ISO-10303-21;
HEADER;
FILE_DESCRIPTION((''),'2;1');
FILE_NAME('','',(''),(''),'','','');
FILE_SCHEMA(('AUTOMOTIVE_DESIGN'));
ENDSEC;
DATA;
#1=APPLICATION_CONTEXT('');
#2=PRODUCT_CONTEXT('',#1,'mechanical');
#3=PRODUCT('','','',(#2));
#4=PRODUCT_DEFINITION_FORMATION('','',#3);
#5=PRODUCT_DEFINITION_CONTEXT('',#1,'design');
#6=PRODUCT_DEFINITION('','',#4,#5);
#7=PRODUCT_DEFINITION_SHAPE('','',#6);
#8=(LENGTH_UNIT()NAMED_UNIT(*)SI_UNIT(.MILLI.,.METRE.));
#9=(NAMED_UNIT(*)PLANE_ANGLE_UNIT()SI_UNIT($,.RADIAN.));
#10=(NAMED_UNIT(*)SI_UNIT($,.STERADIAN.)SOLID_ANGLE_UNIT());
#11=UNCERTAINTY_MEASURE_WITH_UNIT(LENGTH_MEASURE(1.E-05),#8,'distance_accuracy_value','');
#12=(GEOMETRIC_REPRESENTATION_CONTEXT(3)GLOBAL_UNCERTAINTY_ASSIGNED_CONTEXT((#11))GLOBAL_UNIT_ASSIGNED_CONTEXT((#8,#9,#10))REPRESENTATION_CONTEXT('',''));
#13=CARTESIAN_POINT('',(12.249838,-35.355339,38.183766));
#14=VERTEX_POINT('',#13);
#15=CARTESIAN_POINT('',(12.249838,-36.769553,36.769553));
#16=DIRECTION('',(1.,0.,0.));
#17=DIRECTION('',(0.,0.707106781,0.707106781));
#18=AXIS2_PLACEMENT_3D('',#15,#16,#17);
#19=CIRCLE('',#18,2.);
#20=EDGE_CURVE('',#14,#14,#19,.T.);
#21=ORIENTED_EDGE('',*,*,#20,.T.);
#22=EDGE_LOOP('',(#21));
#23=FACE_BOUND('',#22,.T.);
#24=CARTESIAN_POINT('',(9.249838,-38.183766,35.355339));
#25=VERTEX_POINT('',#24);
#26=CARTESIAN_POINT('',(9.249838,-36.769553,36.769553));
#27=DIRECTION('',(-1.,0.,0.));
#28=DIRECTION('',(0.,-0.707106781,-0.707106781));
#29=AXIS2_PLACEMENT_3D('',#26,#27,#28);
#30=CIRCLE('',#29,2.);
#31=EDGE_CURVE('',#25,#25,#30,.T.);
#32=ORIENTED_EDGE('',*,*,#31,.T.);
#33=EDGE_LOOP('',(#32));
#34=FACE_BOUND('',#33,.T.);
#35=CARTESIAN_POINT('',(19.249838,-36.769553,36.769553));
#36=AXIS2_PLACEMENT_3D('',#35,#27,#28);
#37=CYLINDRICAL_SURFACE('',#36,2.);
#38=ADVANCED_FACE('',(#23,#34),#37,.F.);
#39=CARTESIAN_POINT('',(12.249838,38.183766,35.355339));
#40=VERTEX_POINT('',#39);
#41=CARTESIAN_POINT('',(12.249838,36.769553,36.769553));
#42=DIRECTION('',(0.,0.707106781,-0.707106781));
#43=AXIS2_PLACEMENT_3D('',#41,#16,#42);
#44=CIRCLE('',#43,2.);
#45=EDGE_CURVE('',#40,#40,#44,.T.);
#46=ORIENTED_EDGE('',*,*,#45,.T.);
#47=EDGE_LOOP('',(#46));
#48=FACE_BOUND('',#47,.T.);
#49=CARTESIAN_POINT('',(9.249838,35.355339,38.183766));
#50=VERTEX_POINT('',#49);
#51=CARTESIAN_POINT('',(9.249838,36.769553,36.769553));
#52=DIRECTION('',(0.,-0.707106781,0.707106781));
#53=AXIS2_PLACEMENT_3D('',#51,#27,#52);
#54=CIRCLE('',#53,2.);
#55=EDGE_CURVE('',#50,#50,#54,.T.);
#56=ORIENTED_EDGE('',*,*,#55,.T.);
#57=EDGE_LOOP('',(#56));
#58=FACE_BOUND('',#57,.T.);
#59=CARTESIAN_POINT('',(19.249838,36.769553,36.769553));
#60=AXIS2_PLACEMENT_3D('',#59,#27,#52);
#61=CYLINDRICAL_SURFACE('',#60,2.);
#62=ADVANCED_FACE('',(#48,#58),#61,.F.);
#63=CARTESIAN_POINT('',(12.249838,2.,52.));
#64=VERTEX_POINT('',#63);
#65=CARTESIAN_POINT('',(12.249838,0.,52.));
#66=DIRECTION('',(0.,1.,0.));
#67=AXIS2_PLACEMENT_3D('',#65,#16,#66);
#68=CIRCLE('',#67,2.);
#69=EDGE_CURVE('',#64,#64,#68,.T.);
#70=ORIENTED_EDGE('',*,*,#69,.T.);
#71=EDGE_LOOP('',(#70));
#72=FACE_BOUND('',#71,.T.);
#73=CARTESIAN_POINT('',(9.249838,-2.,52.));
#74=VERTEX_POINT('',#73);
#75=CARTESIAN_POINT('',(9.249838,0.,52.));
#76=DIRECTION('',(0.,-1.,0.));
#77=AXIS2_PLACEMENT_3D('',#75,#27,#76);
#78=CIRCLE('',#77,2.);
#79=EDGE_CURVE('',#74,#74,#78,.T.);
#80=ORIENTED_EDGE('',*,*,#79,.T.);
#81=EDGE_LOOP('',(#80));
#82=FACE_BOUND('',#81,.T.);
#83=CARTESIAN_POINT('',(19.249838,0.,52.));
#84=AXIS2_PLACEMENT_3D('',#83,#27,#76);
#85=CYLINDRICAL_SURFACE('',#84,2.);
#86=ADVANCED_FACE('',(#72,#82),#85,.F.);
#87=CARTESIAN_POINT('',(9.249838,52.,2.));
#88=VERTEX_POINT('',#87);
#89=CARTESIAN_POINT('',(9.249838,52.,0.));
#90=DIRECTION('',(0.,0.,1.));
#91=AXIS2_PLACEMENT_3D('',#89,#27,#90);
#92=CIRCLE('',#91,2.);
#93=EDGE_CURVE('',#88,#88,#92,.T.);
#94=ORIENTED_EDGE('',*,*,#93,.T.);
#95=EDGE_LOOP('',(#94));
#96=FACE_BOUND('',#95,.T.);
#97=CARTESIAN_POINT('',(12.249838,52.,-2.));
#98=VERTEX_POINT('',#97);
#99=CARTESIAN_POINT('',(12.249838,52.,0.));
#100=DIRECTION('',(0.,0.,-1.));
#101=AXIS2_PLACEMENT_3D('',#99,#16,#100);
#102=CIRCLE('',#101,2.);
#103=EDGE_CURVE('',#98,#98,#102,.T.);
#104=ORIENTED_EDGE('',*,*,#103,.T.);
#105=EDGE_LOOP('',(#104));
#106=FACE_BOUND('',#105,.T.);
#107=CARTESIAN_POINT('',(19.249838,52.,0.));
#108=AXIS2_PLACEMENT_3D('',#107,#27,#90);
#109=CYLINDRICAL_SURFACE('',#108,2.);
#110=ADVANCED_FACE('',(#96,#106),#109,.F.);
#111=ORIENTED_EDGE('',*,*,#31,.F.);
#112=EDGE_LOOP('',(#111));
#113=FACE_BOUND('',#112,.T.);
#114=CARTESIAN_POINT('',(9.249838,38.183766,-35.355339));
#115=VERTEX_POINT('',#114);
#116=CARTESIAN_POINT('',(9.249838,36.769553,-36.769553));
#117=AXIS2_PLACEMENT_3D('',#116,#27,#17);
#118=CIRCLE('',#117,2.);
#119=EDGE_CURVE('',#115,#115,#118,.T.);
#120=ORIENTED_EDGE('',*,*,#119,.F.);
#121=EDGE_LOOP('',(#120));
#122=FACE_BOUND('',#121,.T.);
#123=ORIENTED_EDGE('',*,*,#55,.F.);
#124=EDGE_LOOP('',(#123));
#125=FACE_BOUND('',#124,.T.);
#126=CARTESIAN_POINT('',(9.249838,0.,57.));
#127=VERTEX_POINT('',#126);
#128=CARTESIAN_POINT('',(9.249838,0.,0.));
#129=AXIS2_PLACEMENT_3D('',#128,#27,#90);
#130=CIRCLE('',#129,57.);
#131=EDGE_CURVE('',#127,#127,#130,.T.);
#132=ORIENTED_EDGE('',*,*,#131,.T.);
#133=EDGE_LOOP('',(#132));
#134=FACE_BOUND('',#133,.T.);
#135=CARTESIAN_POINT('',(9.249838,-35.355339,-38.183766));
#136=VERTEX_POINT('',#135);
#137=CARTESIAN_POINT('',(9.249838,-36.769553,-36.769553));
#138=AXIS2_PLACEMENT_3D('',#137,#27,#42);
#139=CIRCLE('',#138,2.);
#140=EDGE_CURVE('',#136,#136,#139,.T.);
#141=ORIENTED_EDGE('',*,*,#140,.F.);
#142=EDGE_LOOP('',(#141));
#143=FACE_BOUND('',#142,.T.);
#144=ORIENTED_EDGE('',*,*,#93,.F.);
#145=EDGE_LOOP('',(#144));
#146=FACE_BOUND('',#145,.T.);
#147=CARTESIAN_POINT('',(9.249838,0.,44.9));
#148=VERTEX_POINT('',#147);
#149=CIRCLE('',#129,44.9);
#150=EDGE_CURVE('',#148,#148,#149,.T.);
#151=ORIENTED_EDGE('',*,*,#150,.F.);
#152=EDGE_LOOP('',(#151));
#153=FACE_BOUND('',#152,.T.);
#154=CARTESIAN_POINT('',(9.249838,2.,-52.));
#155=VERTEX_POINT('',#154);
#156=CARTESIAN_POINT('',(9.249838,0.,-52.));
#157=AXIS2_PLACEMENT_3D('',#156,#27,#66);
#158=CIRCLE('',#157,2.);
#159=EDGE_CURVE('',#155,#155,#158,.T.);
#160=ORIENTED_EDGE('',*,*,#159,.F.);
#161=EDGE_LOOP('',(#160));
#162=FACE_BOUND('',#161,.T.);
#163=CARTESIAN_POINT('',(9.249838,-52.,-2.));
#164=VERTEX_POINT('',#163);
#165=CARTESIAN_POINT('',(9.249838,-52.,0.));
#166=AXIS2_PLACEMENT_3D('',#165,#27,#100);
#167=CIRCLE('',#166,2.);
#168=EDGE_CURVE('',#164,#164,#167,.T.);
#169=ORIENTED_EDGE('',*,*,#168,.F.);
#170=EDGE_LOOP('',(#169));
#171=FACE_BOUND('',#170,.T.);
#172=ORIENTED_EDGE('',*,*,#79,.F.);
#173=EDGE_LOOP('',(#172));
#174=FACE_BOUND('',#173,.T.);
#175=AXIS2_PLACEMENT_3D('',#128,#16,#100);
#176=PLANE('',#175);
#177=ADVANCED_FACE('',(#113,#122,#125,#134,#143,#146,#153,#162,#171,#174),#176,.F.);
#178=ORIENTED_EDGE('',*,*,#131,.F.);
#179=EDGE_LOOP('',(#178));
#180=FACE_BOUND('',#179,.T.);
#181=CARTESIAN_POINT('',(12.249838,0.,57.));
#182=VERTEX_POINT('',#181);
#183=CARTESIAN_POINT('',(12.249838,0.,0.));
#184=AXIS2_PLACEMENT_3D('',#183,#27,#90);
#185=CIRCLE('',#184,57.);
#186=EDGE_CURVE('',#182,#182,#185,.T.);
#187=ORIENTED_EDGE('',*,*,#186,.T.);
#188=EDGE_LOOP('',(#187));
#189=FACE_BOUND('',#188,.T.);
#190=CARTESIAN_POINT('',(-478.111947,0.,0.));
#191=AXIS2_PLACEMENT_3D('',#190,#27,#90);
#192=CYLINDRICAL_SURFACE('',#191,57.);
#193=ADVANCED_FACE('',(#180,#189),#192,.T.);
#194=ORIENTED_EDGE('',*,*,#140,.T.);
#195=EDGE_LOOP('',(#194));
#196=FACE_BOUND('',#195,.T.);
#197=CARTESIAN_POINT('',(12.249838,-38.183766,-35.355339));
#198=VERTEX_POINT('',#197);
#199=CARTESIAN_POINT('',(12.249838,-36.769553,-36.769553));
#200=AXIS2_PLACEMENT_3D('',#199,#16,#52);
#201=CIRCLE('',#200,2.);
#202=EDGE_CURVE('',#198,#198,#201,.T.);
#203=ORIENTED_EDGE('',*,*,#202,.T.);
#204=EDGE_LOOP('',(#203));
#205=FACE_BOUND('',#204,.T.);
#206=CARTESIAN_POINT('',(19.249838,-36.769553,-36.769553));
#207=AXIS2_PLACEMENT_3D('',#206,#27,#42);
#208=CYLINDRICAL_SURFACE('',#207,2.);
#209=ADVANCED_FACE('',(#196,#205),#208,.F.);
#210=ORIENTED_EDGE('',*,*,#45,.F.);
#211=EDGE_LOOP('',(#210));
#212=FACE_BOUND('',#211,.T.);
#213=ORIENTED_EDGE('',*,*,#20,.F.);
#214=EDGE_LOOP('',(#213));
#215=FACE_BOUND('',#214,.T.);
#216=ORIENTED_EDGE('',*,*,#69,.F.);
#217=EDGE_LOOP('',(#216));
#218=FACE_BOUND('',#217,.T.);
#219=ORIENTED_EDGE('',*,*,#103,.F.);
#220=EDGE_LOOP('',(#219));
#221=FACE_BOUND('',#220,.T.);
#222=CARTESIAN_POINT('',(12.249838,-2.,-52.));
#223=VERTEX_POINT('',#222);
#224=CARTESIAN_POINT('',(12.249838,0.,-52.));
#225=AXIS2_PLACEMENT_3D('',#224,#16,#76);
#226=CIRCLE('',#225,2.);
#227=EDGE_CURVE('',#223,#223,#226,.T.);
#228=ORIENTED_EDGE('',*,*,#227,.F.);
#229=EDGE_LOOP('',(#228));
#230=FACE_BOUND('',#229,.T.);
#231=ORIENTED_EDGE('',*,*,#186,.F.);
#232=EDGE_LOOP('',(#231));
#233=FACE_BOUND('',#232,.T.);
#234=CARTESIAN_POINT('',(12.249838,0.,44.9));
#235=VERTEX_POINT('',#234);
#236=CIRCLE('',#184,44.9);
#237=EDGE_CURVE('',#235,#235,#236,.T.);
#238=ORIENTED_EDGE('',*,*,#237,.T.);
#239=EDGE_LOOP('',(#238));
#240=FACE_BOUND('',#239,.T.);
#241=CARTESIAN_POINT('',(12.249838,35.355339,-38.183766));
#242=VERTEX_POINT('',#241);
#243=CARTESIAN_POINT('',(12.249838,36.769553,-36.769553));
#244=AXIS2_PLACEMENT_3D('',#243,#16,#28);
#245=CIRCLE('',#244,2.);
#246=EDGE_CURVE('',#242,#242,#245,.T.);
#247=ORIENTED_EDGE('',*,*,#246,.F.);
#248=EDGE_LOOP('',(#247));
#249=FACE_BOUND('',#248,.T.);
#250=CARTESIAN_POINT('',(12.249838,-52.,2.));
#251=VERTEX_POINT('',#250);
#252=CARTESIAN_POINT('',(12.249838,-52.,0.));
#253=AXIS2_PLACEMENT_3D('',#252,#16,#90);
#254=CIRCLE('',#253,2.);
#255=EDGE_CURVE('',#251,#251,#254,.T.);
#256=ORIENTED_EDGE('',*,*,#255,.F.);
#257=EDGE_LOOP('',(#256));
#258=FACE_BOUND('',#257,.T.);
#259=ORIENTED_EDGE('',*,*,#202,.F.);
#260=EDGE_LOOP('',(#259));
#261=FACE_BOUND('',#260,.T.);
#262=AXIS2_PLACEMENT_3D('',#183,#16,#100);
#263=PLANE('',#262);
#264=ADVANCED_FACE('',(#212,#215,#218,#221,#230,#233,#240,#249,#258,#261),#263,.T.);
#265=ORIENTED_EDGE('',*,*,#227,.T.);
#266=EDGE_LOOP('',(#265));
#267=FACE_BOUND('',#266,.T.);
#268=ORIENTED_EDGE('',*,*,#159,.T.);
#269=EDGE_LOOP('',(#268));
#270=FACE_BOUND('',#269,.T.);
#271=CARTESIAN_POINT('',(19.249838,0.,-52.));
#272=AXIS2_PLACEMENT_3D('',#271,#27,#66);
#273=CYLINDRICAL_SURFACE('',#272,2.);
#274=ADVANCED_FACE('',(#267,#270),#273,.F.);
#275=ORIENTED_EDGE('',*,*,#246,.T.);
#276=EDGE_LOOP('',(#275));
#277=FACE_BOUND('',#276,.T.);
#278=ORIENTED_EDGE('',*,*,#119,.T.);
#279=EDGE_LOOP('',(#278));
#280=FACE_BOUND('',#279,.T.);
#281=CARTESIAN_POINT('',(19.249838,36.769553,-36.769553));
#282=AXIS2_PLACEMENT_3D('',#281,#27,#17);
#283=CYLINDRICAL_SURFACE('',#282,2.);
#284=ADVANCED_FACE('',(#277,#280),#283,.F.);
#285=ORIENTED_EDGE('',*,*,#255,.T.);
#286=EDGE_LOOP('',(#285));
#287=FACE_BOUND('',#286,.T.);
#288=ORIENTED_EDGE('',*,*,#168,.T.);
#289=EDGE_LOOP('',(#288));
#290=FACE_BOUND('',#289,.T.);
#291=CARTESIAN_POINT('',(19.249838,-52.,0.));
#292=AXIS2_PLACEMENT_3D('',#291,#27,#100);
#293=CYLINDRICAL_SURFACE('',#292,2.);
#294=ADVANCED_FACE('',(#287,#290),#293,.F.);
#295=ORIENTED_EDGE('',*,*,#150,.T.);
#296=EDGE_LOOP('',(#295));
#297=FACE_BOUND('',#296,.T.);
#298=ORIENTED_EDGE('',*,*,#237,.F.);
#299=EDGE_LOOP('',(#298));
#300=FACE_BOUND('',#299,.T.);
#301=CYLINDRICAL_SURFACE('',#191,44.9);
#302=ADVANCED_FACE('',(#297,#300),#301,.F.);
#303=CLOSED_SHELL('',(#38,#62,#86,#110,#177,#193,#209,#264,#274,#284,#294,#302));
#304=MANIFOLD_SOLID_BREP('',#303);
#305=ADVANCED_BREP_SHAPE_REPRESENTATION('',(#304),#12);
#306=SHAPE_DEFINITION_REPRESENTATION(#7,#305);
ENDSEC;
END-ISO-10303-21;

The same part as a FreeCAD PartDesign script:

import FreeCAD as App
import Part
import Sketcher
from FreeCAD import Vector
Q = App.Units.Quantity

doc = App.newDocument("Part")
body = doc.addObject("PartDesign::Body", "Body")

# Sketch on XY plane
sketch1 = body.newObject("Sketcher::SketchObject", "Sketch")
sketch1.AttachmentSupport = (doc.getObject("XY_Plane"), [""])
sketch1.MapMode = "FlatFace"
sketch1.addGeometry([
    Part.LineSegment(Vector(9.2, 57, 0), Vector(9.2, 44.9, 0)),
    Part.LineSegment(Vector(9.2, 44.9, 0), Vector(12.2, 44.9, 0)),
    Part.LineSegment(Vector(12.2, 44.9, 0), Vector(12.2, 57, 0)),
    Part.LineSegment(Vector(12.2, 57, 0), Vector(9.2, 57, 0)),
], False)
sketch1.addConstraint([
    Sketcher.Constraint("Coincident", 0, 2, 1, 1),
    Sketcher.Constraint("Coincident", 1, 2, 2, 1),
    Sketcher.Constraint("Coincident", 2, 2, 3, 1),
    Sketcher.Constraint("Coincident", 3, 2, 0, 1),
    Sketcher.Constraint("Vertical", 0),
    Sketcher.Constraint("Horizontal", 1),
    Sketcher.Constraint("Vertical", 2),
    Sketcher.Constraint("Horizontal", 3),
    Sketcher.Constraint("DistanceX", 1, 1, 1, 2, Q("3 mm")),
    Sketcher.Constraint("DistanceY", 0, 2, 0, 1, Q("12.1 mm")),
    Sketcher.Constraint("DistanceY", -1, 1, 2, 2, Q("57 mm")),
    Sketcher.Constraint("DistanceX", -1, 1, 0, 2, Q("9.249838 mm")),
])
revolution = body.newObject("PartDesign::Revolution", "Revolution")
revolution.Profile = sketch1
revolution.ReferenceAxis = (sketch1, ["H_Axis"])
revolution.Angle = 360

# Sketch on YZ plane
sketch2 = body.newObject("Sketcher::SketchObject", "Sketch001")
sketch2.AttachmentSupport = (doc.getObject("YZ_Plane"), [""])
sketch2.MapMode = "FlatFace"
sketch2.AttachmentOffset = App.Placement(Vector(0, 0, 9.249838), App.Rotation())
sketch2.addGeometry(Part.Circle(Vector(52, 0, 0), Vector(0, 0, 1), 2), False)
sketch2.addConstraint([
    Sketcher.Constraint("PointOnObject", 0, 3, -1),
    Sketcher.Constraint("Diameter", 0, Q("4 mm")),
    Sketcher.Constraint("DistanceX", -1, 1, 0, 3, Q("52 mm")),
])
pocket1 = body.newObject("PartDesign::Pocket", "Pocket")
pocket1.Profile = sketch2
pocket1.Length = 10
pocket1.Reversed = True
doc.recompute()

polarpattern = body.newObject("PartDesign::PolarPattern", "PolarPattern")
polarpattern.Originals = [pocket1]
polarpattern.Axis = (doc.getObject("X_Axis"), [""])
polarpattern.Angle = 360
polarpattern.Occurrences = 8
body.Tip = polarpattern

doc.recompute()
